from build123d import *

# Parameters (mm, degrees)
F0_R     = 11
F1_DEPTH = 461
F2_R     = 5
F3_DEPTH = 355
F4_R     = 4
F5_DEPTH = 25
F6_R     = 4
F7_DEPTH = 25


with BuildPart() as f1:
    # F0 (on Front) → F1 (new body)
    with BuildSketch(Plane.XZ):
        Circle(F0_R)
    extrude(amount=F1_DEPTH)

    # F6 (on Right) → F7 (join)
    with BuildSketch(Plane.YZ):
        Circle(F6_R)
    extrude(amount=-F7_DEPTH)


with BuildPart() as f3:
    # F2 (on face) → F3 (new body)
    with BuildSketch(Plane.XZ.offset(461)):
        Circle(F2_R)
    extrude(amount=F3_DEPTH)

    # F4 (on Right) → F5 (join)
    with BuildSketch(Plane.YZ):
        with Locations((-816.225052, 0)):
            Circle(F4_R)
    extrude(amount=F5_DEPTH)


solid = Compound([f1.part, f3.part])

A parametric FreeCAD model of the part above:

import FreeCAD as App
import Part
import Sketcher

V = App.Vector

doc = App.newDocument("Part")
body = doc.addObject("PartDesign::Body", "Body")

# Sketch on XZ plane
sketch1 = doc.addObject("Sketcher::SketchObject", "Sketch")
body.addObject(sketch1)
sketch1.AttachmentSupport = (doc.XZ_Plane, [""])
sketch1.MapMode = "FlatFace"
sketch1.addGeometry(Part.Circle(V(0, 0, 0), V(0, 0, 1), 11), False)
sketch1.addConstraint([
    Sketcher.Constraint("Coincident", 0, 3, -1, 1),
    Sketcher.Constraint("Diameter", 0, 22.0),
])
pad1 = doc.addObject("PartDesign::Pad", "Pad")
body.addObject(pad1)
pad1.Profile = sketch1
pad1.Length = 461

# Sketch on YZ plane
sketch2 = doc.addObject("Sketcher::SketchObject", "Sketch001")
body.addObject(sketch2)
sketch2.AttachmentSupport = (doc.YZ_Plane, [""])
sketch2.MapMode = "FlatFace"
sketch2.addGeometry(Part.Circle(V(0, 0, 0), V(0, 0, 1), 4), False)
sketch2.addConstraint([
    Sketcher.Constraint("Coincident", 0, 3, -1, 1),
    Sketcher.Constraint("Diameter", 0, 8.0),
])
pad2 = doc.addObject("PartDesign::Pad", "Pad001")
body.addObject(pad2)
pad2.Profile = sketch2
pad2.Length = 25
pad2.Reversed = True
body2 = doc.addObject("PartDesign::Body", "Body001")

# Sketch on XZ plane
sketch3 = doc.addObject("Sketcher::SketchObject", "Sketch002")
body2.addObject(sketch3)
sketch3.AttachmentSupport = (doc.getObject("XZ_Plane001"), [""])
sketch3.MapMode = "FlatFace"
sketch3.AttachmentOffset = App.Placement(V(0, 0, 461), App.Rotation())
sketch3.addGeometry(Part.Circle(V(0, 0, 0), V(0, 0, 1), 5), False)
sketch3.addConstraint([
    Sketcher.Constraint("Coincident", 0, 3, -1, 1),
    Sketcher.Constraint("Diameter", 0, 10.0),
])
pad3 = doc.addObject("PartDesign::Pad", "Pad002")
body2.addObject(pad3)
pad3.Profile = sketch3
pad3.Length = 355

# Sketch on YZ plane
sketch4 = doc.addObject("Sketcher::SketchObject", "Sketch003")
body2.addObject(sketch4)
sketch4.AttachmentSupport = (doc.getObject("YZ_Plane001"), [""])
sketch4.MapMode = "FlatFace"
sketch4.addGeometry(Part.Circle(V(-816.2, 0, 0), V(0, 0, 1), 4), False)
sketch4.addConstraint([
    Sketcher.Constraint("PointOnObject", 0, 3, -1),
    Sketcher.Constraint("Diameter", 0, 8.0),
    Sketcher.Constraint("DistanceX", 0, 3, -1, 1, 816.225052),
])
pad4 = doc.addObject("PartDesign::Pad", "Pad003")
body2.addObject(pad4)
pad4.Profile = sketch4
pad4.Length = 25

doc.recompute()
